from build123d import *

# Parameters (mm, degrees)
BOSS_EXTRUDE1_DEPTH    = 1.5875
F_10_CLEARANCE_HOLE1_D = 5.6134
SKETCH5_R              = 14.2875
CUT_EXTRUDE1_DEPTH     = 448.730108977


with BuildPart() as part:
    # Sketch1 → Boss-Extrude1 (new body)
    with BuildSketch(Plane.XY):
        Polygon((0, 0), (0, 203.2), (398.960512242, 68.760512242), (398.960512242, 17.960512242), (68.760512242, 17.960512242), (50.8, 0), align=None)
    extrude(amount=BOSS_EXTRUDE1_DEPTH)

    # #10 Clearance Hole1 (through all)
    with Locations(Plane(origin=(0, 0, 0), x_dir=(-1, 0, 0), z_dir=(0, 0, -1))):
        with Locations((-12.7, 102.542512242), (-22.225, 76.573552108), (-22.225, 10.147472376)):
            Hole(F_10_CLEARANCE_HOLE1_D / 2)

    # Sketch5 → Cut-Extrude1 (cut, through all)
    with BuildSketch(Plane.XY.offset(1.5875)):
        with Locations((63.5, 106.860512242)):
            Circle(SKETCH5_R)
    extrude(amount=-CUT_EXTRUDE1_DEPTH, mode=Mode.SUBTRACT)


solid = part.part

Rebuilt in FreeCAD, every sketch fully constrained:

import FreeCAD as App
import Part
import Sketcher
from FreeCAD import Vector
Q = App.Units.Quantity


def add_polygon(sketch, points):
    """Adds a closed chain of lines whose ends are joined by coincident constraints."""
    first, n = sketch.GeometryCount, len(points)
    for a, b in zip(points, points[1:] + points[:1]):
        sketch.addGeometry(Part.LineSegment(App.Vector(*a, 0), App.Vector(*b, 0)), False)
    for i in range(n):
        sketch.addConstraint(Sketcher.Constraint("Coincident", first + i, 2, first + (i + 1) % n, 1))

doc = App.newDocument("Part")
body = doc.addObject("PartDesign::Body", "Body")

sketch1 = body.newObject("Sketcher::SketchObject", "Sketch")
sketch1.AttachmentSupport = (doc.getObject("XY_Plane"), [""])
sketch1.MapMode = "FlatFace"
add_polygon(sketch1, [(0, 203), (0, 0), (51, 0), (69, 18), (399, 18), (399, 69)])
sketch1.addConstraint(Sketcher.Constraint("Vertical", 0))
sketch1.addConstraint(Sketcher.Constraint("Horizontal", 1))
sketch1.addConstraint(Sketcher.Constraint("Horizontal", 3))
sketch1.addConstraint(Sketcher.Constraint("Vertical", 4))
sketch1.addConstraint(Sketcher.Constraint("Coincident", 0, 2, -1, 1))
sketch1.addConstraint(Sketcher.Constraint("Equal", 1, 4))
sketch1.addConstraint(Sketcher.Constraint("DistanceX", 1, 1, 1, 2, Q("2 in")))
sketch1.addConstraint(Sketcher.Constraint("DistanceX", 3, 1, 3, 2, Q("13 in")))
sketch1.addConstraint(Sketcher.Constraint("DistanceY", 0, 2, 0, 1, Q("8 in")))
sketch1.addConstraint(Sketcher.Constraint("Distance", 2, Q("1 in")))
sketch1.addConstraint(Sketcher.Constraint("Angle", 2, Q("45 deg")))
pad1 = body.newObject("PartDesign::Pad", "Pad")
pad1.Profile = sketch1
pad1.Length = Q("0.0625 in")

sketch2 = body.newObject("Sketcher::SketchObject", "Sketch001")
sketch2.AttachmentSupport = (doc.getObject("XY_Plane"), [""])
sketch2.MapMode = "FlatFace"
sketch2.addGeometry(Part.Circle(Vector(12.7, 102.5, 0), Vector(0, 0, 1), 2.8), False)
sketch2.addGeometry(Part.Circle(Vector(22.2, 76.6, 0), Vector(0, 0, 1), 2.8), False)
sketch2.addGeometry(Part.Circle(Vector(22.2, 10.1, 0), Vector(0, 0, 1), 2.8), False)
sketch2.addConstraint(Sketcher.Constraint("Equal", 0, 1))
sketch2.addConstraint(Sketcher.Constraint("Equal", 1, 2))
sketch2.addConstraint(Sketcher.Constraint("Vertical", 1, 3, 2, 3))
sketch2.addConstraint(Sketcher.Constraint("Diameter", 0, Q("0.221 in")))
sketch2.addConstraint(Sketcher.Constraint("DistanceX", -1, 1, 0, 3, Q("0.5 in")))
sketch2.addConstraint(Sketcher.Constraint("DistanceX", -1, 1, 1, 3, Q("0.875 in")))
sketch2.addConstraint(Sketcher.Constraint("DistanceY", 1, 3, 0, 3, Q("1.0224 in")))
sketch2.addConstraint(Sketcher.Constraint("DistanceY", 2, 3, 1, 3, Q("2.6152 in")))
sketch2.addConstraint(Sketcher.Constraint("DistanceY", -1, 1, 0, 3, Q("102.542512 mm")))
doc.recompute()
hole = body.newObject("PartDesign::Hole", "Hole")
hole.Profile = sketch2
hole.ThreadType = "None"
hole.Diameter = Q("0.221 in")
hole.DepthType = "ThroughAll"
hole.Reversed = True

sketch3 = body.newObject("Sketcher::SketchObject", "Sketch002")
sketch3.AttachmentSupport = (doc.getObject("XY_Plane"), [""])
sketch3.MapMode = "FlatFace"
sketch3.AttachmentOffset = App.Placement(Vector(0, 0, 0.0625 * 25.4), App.Rotation())
sketch3.addGeometry(Part.Circle(Vector(64, 107, 0), Vector(0, 0, 1), 14), False)
sketch3.addConstraint(Sketcher.Constraint("Diameter", 0, Q("1.125 in")))
sketch3.addConstraint(Sketcher.Constraint("DistanceX", -1, 1, 0, 3, Q("2.5 in")))
sketch3.addConstraint(Sketcher.Constraint("DistanceY", -1, 1, 0, 3, Q("106.860512 mm")))
pocket1 = body.newObject("PartDesign::Pocket", "Pocket")
pocket1.Profile = sketch3
pocket1.Type = "ThroughAll"

doc.recompute()
